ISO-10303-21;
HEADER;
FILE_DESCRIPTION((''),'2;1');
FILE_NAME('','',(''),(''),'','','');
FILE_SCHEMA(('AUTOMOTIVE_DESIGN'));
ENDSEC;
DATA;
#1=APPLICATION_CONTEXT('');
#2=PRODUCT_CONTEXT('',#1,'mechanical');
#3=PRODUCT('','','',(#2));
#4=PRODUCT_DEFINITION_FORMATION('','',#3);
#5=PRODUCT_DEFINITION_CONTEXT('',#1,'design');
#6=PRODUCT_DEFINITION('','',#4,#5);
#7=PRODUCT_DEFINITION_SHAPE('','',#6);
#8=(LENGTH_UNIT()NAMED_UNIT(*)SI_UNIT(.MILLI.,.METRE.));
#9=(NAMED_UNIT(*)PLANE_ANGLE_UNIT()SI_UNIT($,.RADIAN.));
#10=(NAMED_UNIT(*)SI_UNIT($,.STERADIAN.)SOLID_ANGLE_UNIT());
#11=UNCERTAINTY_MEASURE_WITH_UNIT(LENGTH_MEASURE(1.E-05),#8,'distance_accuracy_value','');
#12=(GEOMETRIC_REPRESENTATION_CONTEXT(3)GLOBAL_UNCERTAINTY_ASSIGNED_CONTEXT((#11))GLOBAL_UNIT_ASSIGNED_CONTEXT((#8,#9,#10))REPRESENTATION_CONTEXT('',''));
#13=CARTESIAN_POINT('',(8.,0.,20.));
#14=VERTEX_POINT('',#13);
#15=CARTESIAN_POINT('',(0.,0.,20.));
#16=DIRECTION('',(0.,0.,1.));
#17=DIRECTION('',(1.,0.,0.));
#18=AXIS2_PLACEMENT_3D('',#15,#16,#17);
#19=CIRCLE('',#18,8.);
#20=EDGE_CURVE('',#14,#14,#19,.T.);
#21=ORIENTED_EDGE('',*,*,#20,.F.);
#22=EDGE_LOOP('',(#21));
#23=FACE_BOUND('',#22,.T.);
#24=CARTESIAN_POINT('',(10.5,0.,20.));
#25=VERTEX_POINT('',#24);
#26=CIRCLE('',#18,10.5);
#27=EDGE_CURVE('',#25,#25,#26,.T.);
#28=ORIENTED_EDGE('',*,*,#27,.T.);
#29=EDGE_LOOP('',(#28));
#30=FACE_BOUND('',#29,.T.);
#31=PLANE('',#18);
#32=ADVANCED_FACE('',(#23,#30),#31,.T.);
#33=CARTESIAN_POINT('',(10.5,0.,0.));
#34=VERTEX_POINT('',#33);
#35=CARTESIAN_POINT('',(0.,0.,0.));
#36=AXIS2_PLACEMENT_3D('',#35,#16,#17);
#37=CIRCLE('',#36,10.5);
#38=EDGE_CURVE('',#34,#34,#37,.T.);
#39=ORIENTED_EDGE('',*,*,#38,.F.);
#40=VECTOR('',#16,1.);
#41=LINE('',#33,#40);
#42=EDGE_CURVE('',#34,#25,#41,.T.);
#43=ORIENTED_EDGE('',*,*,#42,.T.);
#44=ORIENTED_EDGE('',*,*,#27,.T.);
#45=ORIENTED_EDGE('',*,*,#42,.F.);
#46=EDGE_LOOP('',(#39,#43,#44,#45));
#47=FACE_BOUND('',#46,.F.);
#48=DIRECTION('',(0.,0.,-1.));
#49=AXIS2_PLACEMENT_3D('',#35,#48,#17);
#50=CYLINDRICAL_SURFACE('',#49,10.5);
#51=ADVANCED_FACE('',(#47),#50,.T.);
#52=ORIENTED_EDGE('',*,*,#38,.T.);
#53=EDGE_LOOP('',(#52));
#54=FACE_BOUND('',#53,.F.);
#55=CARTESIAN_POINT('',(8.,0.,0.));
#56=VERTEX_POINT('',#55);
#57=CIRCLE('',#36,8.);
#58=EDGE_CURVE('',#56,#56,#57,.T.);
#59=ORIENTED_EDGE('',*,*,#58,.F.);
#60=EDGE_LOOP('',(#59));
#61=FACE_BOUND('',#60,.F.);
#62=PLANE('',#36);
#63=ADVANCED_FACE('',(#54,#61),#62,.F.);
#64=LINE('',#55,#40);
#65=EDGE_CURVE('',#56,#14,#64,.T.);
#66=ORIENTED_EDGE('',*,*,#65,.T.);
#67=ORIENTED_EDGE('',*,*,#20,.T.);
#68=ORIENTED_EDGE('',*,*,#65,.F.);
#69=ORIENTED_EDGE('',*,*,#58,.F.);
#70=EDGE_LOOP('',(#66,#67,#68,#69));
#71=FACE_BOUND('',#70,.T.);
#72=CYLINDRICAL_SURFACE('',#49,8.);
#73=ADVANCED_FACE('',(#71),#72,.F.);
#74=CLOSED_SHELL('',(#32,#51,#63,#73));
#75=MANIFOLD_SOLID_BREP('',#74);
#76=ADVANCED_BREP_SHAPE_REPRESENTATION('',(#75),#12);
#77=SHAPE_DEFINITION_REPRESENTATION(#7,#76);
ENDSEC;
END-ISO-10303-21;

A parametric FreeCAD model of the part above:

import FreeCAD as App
import Part
import Sketcher
Q = App.Units.Quantity

doc = App.newDocument("Part")
body = doc.addObject("PartDesign::Body", "Body")

sketch1 = doc.addObject("Sketcher::SketchObject", "Sketch")
body.addObject(sketch1)
sketch1.AttachmentSupport = (doc.XY_Plane, [""])
sketch1.MapMode = "FlatFace"
sketch1.addGeometry([
    Part.Circle(App.Vector(0, 0, 0), App.Vector(0, 0, 1), 10),
    Part.Circle(App.Vector(0, 0, 0), App.Vector(0, 0, 1), 8),
], False)
sketch1.addConstraint([
    Sketcher.Constraint("Coincident", 0, 3, -1, 1),
    Sketcher.Constraint("Coincident", 1, 3, -1, 1),
    Sketcher.Constraint("Diameter", 0, Q("21 mm")),
    Sketcher.Constraint("Diameter", 1, Q("16 mm")),
])
pad1 = doc.addObject("PartDesign::Pad", "Pad")
body.addObject(pad1)
pad1.Profile = sketch1
pad1.Length = 20

doc.recompute()
